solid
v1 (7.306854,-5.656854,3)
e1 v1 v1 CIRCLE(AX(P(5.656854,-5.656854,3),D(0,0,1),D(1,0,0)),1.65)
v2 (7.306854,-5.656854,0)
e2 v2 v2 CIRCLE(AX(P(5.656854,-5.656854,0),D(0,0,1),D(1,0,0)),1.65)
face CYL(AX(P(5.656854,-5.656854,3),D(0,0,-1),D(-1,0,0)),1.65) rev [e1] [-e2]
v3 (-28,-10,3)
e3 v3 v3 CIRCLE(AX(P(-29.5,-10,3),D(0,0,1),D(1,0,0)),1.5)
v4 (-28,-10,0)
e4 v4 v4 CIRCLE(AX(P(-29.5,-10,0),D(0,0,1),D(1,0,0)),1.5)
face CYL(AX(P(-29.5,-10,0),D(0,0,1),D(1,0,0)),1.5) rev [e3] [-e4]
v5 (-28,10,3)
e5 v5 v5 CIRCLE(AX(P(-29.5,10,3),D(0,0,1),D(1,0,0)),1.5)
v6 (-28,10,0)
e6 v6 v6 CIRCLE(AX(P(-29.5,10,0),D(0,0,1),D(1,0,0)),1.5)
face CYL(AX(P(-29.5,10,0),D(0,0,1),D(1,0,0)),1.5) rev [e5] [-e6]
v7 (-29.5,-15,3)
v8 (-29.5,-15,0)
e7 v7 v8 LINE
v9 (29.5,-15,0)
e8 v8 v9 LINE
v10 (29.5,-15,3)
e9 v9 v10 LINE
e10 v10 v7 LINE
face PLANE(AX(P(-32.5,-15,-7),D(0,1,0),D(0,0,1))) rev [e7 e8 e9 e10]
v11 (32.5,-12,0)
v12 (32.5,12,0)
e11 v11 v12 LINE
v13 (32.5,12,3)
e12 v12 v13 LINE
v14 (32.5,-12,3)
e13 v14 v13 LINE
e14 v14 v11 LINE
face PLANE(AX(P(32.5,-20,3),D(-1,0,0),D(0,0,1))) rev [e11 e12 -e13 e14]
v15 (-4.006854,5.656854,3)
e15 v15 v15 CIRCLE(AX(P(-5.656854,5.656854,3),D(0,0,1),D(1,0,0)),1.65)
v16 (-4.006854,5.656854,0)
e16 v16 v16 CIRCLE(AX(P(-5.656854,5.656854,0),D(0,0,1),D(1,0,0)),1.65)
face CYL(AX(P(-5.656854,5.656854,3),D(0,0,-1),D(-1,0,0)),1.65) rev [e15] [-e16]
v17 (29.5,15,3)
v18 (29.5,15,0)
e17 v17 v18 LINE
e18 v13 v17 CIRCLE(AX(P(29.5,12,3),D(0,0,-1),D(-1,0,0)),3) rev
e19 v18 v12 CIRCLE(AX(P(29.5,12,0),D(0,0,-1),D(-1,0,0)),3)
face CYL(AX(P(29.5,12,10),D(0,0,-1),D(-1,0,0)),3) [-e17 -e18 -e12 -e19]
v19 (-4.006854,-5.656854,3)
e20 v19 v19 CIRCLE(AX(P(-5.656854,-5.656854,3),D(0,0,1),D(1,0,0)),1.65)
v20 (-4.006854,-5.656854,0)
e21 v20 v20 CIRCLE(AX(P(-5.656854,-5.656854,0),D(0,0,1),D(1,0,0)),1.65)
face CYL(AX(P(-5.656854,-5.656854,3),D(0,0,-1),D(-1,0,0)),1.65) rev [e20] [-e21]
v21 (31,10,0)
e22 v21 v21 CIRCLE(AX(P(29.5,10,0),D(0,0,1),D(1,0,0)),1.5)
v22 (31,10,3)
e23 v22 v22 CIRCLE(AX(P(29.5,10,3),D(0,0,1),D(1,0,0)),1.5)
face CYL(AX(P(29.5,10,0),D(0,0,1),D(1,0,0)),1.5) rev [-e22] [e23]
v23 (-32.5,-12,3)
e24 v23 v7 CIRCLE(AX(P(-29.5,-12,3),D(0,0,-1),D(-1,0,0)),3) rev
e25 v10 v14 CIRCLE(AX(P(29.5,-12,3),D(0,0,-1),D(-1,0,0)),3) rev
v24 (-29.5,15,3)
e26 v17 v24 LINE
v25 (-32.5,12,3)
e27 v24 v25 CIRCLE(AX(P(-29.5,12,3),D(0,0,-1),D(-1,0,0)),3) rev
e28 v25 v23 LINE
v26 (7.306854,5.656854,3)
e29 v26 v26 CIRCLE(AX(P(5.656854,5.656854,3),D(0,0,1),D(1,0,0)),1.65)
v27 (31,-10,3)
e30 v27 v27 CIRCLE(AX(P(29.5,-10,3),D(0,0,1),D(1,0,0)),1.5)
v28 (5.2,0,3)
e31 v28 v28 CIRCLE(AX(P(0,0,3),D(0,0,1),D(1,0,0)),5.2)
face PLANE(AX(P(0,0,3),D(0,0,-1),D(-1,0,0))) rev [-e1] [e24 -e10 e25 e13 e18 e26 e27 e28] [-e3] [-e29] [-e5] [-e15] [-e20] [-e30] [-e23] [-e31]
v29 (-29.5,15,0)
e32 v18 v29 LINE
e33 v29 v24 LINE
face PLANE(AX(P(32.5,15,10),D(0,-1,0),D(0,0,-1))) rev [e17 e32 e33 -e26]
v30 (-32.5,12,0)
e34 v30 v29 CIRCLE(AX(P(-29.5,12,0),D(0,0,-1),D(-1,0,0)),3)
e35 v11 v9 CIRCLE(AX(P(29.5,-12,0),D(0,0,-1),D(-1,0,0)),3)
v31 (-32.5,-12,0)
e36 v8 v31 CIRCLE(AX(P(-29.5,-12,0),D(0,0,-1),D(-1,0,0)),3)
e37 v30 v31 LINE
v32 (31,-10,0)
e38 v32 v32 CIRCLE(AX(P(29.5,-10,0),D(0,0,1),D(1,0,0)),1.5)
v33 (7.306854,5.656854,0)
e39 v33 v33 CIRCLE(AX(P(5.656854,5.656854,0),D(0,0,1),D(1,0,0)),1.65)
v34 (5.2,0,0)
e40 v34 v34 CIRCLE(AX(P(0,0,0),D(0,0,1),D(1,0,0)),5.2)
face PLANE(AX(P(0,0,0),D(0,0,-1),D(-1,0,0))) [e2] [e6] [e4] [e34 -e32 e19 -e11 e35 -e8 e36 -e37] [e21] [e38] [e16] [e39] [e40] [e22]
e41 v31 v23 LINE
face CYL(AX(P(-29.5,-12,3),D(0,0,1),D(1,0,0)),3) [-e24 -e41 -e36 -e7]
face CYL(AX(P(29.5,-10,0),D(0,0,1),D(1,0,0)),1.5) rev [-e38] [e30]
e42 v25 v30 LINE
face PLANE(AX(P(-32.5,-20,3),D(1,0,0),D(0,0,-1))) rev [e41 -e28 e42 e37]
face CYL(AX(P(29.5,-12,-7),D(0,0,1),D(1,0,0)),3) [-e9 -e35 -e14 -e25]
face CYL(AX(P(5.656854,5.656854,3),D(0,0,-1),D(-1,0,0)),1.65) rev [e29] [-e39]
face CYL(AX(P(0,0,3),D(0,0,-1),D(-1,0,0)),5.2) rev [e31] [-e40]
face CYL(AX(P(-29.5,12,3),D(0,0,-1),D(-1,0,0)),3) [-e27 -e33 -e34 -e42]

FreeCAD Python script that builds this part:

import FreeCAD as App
import Part
import Sketcher
from FreeCAD import Vector


def edges_at(feature, points):
    """Names of the edges that pass closest to the given points."""
    edges = feature.Shape.Edges
    near = lambda p: min(range(len(edges)), key=lambda i: edges[i].distToShape(Part.Vertex(*p))[0])
    return sorted({f"Edge{near(p) + 1}" for p in points})

doc = App.newDocument("Part")
params = doc.addObject("Spreadsheet::Sheet", "Params")
for row, (alias, value) in enumerate([
    ("sketch1_diameter", "3.3 mm"),
    ("sketch1_diameter2", "10.4 mm"),
    ("sketch1_width", "65 mm"),
    ("sketch1_height", "40 mm"),
    ("pad1_length", "3 mm"),
    ("sketch2_diameter", "3 mm"),
    ("pocket1_length", "3 mm"),
    ("sketch3_width", "65 mm"),
    ("sketch3_height", "5 mm"),
    ("pocket2_length", "10 mm"),
    ("sketch4_width", "65 mm"),
    ("sketch4_height", "5 mm"),
    ("pocket3_length", "10 mm"),
    ("fillet_radius", "3 mm"),
], start=1):
    params.set(f"A{row}", alias)
    params.set(f"B{row}", "=" + value)
    params.setAlias(f"B{row}", alias)

body = doc.addObject("PartDesign::Body", "Body")

sketch1 = body.newObject("Sketcher::SketchObject", "Sketch")
sketch1.AttachmentSupport = (doc.getObject("XY_Plane"), [""])
sketch1.MapMode = "FlatFace"
sketch1.addGeometry([
    Part.LineSegment(Vector(-32.5, 20, 0), Vector(-32.5, -20, 0)),
    Part.LineSegment(Vector(-32.5, -20, 0), Vector(32.5, -20, 0)),
    Part.LineSegment(Vector(32.5, -20, 0), Vector(32.5, 20, 0)),
    Part.LineSegment(Vector(32.5, 20, 0), Vector(-32.5, 20, 0)),
    Part.Circle(Vector(-5.7, -5.7, 0), Vector(0, 0, 1), 1.6),
    Part.Circle(Vector(5.7, -5.7, 0), Vector(0, 0, 1), 1.6),
    Part.Circle(Vector(-5.7, 5.7, 0), Vector(0, 0, 1), 1.6),
    Part.Circle(Vector(0, 0, 0), Vector(0, 0, 1), 5.2),
    Part.Circle(Vector(5.7, 5.7, 0), Vector(0, 0, 1), 1.6),
], False)
sketch1.addConstraint([
    Sketcher.Constraint("Coincident", 0, 2, 1, 1),
    Sketcher.Constraint("Coincident", 1, 2, 2, 1),
    Sketcher.Constraint("Coincident", 2, 2, 3, 1),
    Sketcher.Constraint("Coincident", 3, 2, 0, 1),
    Sketcher.Constraint("Vertical", 0),
    Sketcher.Constraint("Horizontal", 1),
    Sketcher.Constraint("Vertical", 2),
    Sketcher.Constraint("Horizontal", 3),
    Sketcher.Constraint("Coincident", 7, 3, -1, 1),
    Sketcher.Constraint("Equal", 4, 5),
    Sketcher.Constraint("Equal", 5, 6),
    Sketcher.Constraint("Equal", 6, 8),
    Sketcher.Constraint("Symmetric", 5, 3, 6, 3, -1, 1),
    Sketcher.Constraint("Symmetric", 4, 3, 8, 3, -1, 1),
    Sketcher.Constraint("Symmetric", 0, 2, 2, 2, -1, 1),
    Sketcher.Constraint("Symmetric", 4, 3, 5, 3, -2),
    Sketcher.Constraint("Diameter", 4, 3.3),
    Sketcher.Constraint("Diameter", 7, 10.4),
    Sketcher.Constraint("DistanceX", 1, 1, 1, 2, 65.0),
    Sketcher.Constraint("DistanceY", 0, 2, 0, 1, 40.0),
    Sketcher.Constraint("DistanceX", 4, 3, 5, 3, 11.313708),
    Sketcher.Constraint("DistanceY", 4, 3, 6, 3, 11.313708),
])
sketch1.setExpression("Constraints[16]", "Params.sketch1_diameter")
sketch1.setExpression("Constraints[17]", "Params.sketch1_diameter2")
sketch1.setExpression("Constraints[18]", "Params.sketch1_width")
sketch1.setExpression("Constraints[19]", "Params.sketch1_height")
pad1 = body.newObject("PartDesign::Pad", "Pad")
pad1.Profile = sketch1
pad1.setExpression("Length", "Params.pad1_length")

sketch2 = body.newObject("Sketcher::SketchObject", "Sketch001")
sketch2.AttachmentSupport = (doc.getObject("XY_Plane"), [""])
sketch2.MapMode = "FlatFace"
sketch2.AttachmentOffset = App.Placement(Vector(0, 0, 3), App.Rotation())
sketch2.addGeometry([
    Part.Circle(Vector(29.5, 10, 0), Vector(0, 0, 1), 1.5),
    Part.Circle(Vector(29.5, -10, 0), Vector(0, 0, 1), 1.5),
    Part.Circle(Vector(-29.5, -10, 0), Vector(0, 0, 1), 1.5),
    Part.Circle(Vector(-29.5, 10, 0), Vector(0, 0, 1), 1.5),
], False)
sketch2.addConstraint([
    Sketcher.Constraint("Equal", 0, 1),
    Sketcher.Constraint("Equal", 1, 2),
    Sketcher.Constraint("Equal", 2, 3),
    Sketcher.Constraint("Symmetric", 0, 3, 2, 3, -1, 1),
    Sketcher.Constraint("Symmetric", 1, 3, 3, 3, -1, 1),
    Sketcher.Constraint("Symmetric", 1, 3, 2, 3, -2),
    Sketcher.Constraint("Diameter", 0, 3.0),
    Sketcher.Constraint("DistanceY", -1, 1, 0, 3, 10.0),
    Sketcher.Constraint("DistanceX", 2, 3, 1, 3, 59.0),
])
sketch2.setExpression("Constraints[6]", "Params.sketch2_diameter")
pocket1 = body.newObject("PartDesign::Pocket", "Pocket")
pocket1.Profile = sketch2
pocket1.setExpression("Length", "Params.pocket1_length")

sketch3 = body.newObject("Sketcher::SketchObject", "Sketch002")
sketch3.AttachmentSupport = (doc.getObject("XY_Plane"), [""])
sketch3.MapMode = "FlatFace"
sketch3.addGeometry([
    Part.LineSegment(Vector(32, 20, 0), Vector(32, 15, 0)),
    Part.LineSegment(Vector(32, 15, 0), Vector(-32, 15, 0)),
    Part.LineSegment(Vector(-32, 15, 0), Vector(-32, 20, 0)),
    Part.LineSegment(Vector(-32, 20, 0), Vector(32, 20, 0)),
], False)
sketch3.addConstraint([
    Sketcher.Constraint("Coincident", 0, 2, 1, 1),
    Sketcher.Constraint("Coincident", 1, 2, 2, 1),
    Sketcher.Constraint("Coincident", 2, 2, 3, 1),
    Sketcher.Constraint("Coincident", 3, 2, 0, 1),
    Sketcher.Constraint("Vertical", 0),
    Sketcher.Constraint("Horizontal", 1),
    Sketcher.Constraint("Vertical", 2),
    Sketcher.Constraint("Horizontal", 3),
    Sketcher.Constraint("DistanceX", 1, 2, 1, 1, 65.0),
    Sketcher.Constraint("DistanceY", 0, 2, 0, 1, 5.0),
    Sketcher.Constraint("DistanceY", -1, 1, 0, 2, 15.0),
    Sketcher.Constraint("DistanceX", -1, 1, 0, 2, 32.5),
])
sketch3.setExpression("Constraints[8]", "Params.sketch3_width")
sketch3.setExpression("Constraints[9]", "Params.sketch3_height")
pocket2 = body.newObject("PartDesign::Pocket", "Pocket001")
pocket2.Profile = sketch3
pocket2.setExpression("Length", "Params.pocket2_length")
pocket2.Reversed = True

sketch4 = body.newObject("Sketcher::SketchObject", "Sketch003")
sketch4.AttachmentSupport = (doc.getObject("XY_Plane"), [""])
sketch4.MapMode = "FlatFace"
sketch4.AttachmentOffset = App.Placement(Vector(0, 0, 3), App.Rotation())
sketch4.addGeometry([
    Part.LineSegment(Vector(-32, -15, 0), Vector(-32, -20, 0)),
    Part.LineSegment(Vector(-32, -20, 0), Vector(32, -20, 0)),
    Part.LineSegment(Vector(32, -20, 0), Vector(32, -15, 0)),
    Part.LineSegment(Vector(32, -15, 0), Vector(-32, -15, 0)),
], False)
sketch4.addConstraint([
    Sketcher.Constraint("Coincident", 0, 2, 1, 1),
    Sketcher.Constraint("Coincident", 1, 2, 2, 1),
    Sketcher.Constraint("Coincident", 2, 2, 3, 1),
    Sketcher.Constraint("Coincident", 3, 2, 0, 1),
    Sketcher.Constraint("Vertical", 0),
    Sketcher.Constraint("Horizontal", 1),
    Sketcher.Constraint("Vertical", 2),
    Sketcher.Constraint("Horizontal", 3),
    Sketcher.Constraint("DistanceX", 1, 1, 1, 2, 65.0),
    Sketcher.Constraint("DistanceY", 0, 2, 0, 1, 5.0),
    Sketcher.Constraint("DistanceY", 0, 2, -1, 1, 20.0),
    Sketcher.Constraint("DistanceX", 0, 2, -1, 1, 32.5),
])
sketch4.setExpression("Constraints[8]", "Params.sketch4_width")
sketch4.setExpression("Constraints[9]", "Params.sketch4_height")
pocket3 = body.newObject("PartDesign::Pocket", "Pocket002")
pocket3.Profile = sketch4
pocket3.setExpression("Length", "Params.pocket3_length")
doc.recompute()

fillet = body.newObject("PartDesign::Fillet", "Fillet")
fillet.Base = (pocket3, edges_at(pocket3, [
    (-32.5, 15, 1.5),
    (32.5, 15, 1.5),
    (-32.5, -15, 1.5),
    (32.5, -15, 1.5),
]))
fillet.setExpression("Radius", "Params.fillet_radius")

doc.recompute()
